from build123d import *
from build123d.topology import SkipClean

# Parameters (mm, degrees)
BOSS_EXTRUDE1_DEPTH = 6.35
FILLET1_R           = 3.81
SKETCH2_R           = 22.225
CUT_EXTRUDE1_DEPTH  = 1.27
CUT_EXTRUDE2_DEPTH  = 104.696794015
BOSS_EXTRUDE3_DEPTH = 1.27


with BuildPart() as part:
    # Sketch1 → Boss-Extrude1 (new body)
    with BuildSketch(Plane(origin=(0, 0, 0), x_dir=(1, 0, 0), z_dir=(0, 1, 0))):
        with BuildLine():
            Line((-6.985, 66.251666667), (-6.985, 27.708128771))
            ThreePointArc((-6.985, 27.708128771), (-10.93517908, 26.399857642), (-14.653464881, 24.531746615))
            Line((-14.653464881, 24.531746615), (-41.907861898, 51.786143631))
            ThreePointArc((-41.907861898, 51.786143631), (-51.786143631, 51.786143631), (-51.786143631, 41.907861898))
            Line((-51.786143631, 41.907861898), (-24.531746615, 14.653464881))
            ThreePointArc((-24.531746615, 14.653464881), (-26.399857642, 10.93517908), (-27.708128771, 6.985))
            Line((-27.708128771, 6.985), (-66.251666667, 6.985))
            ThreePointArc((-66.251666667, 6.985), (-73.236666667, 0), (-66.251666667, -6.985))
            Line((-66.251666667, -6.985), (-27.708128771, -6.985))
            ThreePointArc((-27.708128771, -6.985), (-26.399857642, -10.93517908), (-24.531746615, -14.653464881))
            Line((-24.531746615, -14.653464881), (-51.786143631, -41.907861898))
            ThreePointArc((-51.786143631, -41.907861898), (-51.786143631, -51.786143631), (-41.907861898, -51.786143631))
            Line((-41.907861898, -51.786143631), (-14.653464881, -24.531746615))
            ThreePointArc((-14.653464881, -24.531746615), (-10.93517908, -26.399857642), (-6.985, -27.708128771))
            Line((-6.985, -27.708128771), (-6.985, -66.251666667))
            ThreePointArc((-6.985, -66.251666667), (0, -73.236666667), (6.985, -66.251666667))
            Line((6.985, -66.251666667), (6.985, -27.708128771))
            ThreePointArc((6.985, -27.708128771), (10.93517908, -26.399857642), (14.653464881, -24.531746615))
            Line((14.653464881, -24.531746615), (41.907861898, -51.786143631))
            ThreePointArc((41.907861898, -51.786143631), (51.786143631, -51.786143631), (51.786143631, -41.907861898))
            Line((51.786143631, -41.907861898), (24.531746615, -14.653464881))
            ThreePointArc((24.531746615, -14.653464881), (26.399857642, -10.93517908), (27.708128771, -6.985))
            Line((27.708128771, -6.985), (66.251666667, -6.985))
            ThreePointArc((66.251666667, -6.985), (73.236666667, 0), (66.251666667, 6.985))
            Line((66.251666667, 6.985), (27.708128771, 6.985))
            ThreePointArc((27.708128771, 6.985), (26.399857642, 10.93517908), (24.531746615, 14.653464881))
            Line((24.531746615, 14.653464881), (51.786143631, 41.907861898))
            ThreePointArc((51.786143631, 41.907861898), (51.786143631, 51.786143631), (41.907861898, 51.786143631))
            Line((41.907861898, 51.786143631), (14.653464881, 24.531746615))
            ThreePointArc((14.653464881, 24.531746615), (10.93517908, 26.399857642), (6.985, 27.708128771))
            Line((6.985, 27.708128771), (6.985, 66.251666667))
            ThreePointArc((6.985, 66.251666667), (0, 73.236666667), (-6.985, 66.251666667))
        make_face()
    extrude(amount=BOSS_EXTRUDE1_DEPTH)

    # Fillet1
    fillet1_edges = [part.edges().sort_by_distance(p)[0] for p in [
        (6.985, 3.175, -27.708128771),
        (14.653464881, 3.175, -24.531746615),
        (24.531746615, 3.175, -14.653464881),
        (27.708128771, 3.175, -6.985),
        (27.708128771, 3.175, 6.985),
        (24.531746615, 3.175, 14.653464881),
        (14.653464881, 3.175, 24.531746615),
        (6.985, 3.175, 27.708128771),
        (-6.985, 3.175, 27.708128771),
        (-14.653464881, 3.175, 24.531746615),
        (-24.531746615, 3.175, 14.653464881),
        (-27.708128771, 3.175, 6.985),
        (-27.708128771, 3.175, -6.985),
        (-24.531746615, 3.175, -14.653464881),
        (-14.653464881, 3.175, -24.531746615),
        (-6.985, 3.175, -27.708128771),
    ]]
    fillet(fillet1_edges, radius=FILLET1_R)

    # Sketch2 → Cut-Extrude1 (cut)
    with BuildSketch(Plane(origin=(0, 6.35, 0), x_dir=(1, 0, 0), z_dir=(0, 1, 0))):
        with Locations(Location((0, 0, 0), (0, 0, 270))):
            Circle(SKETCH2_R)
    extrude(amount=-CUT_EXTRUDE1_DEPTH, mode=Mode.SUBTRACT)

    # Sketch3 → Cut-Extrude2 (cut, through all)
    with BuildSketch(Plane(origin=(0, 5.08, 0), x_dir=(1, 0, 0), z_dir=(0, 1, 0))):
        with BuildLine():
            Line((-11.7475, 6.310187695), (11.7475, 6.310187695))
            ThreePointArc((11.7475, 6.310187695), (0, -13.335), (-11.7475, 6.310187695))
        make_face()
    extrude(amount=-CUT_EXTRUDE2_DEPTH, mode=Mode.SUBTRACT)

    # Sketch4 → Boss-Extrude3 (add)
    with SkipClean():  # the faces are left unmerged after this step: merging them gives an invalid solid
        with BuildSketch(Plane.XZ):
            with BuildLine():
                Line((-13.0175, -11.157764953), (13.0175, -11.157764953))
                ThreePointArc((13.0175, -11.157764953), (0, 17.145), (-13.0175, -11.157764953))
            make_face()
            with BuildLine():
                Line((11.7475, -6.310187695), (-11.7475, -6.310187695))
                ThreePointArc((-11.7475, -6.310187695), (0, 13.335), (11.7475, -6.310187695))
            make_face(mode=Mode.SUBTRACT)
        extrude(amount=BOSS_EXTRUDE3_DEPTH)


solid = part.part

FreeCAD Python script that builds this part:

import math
import FreeCAD as App
import Part
import Sketcher
from FreeCAD import Vector
Q = App.Units.Quantity


def edges_at(feature, points):
    """Names of the edges that pass closest to the given points."""
    edges = feature.Shape.Edges
    near = lambda p: min(range(len(edges)), key=lambda i: edges[i].distToShape(Part.Vertex(*p))[0])
    return sorted({f"Edge{near(p) + 1}" for p in points})

doc = App.newDocument("Part")
params = doc.addObject("Spreadsheet::Sheet", "Params")
for row, (alias, value) in enumerate([
    ("sketch1_radius", "1.125 in"),
    ("sketch1_radius2", "0.275 in"),
    ("pad1_length", "0.25 in"),
    ("fillet_radius", "0.15 in"),
    ("sketch2_diameter", "1.75 in"),
    ("pocket1_length", "0.05 in"),
    ("sketch3_radius", "0.525 in"),
    ("sketch3_width", "0.925 in"),
    ("sketch4_radius", "0.675 in"),
    ("sketch4_radius2", "0.525 in"),
    ("sketch4_width", "1.025 in"),
    ("sketch4_width2", "0.925 in"),
    ("pad2_length", "0.05 in"),
], start=1):
    params.set(f"A{row}", alias)
    params.set(f"B{row}", "=" + value)
    params.setAlias(f"B{row}", alias)

body = doc.addObject("PartDesign::Body", "Body")

# Sketch on XZ plane
sketch1 = body.newObject("Sketcher::SketchObject", "Sketch")
sketch1.AttachmentSupport = (doc.getObject("XZ_Plane"), [""])
sketch1.MapMode = "FlatFace"
sketch1.addGeometry([
    Part.LineSegment(Vector(-7, -66, 0), Vector(-7, -28, 0)),  # 0
    Part.ArcOfCircle(Part.Circle(Vector(0, 0, 0), Vector(0, 0, 1), 29), math.radians(-120.85), math.radians(-104.15)),  # 1
    Part.LineSegment(Vector(-15, -25, 0), Vector(-42, -52, 0)),  # 2
    Part.ArcOfCircle(Part.Circle(Vector(-47, -47, 0), Vector(0, 0, 1), 7), math.radians(135), math.radians(315)),  # 3
    Part.LineSegment(Vector(-52, -42, 0), Vector(-25, -15, 0)),  # 4
    Part.ArcOfCircle(Part.Circle(Vector(0, 0, 0), Vector(0, 0, 1), 29), math.radians(-165.85), math.radians(-149.15)),  # 5
    Part.LineSegment(Vector(-28, -7, 0), Vector(-66, -7, 0)),  # 6
    Part.ArcOfCircle(Part.Circle(Vector(-66, 0, 0), Vector(0, 0, 1), 7), math.radians(90), math.radians(270)),  # 7
    Part.LineSegment(Vector(-66, 7, 0), Vector(-28, 7, 0)),  # 8
    Part.ArcOfCircle(Part.Circle(Vector(0, 0, 0), Vector(0, 0, 1), 29), math.radians(149.15), math.radians(165.85)),  # 9
    Part.LineSegment(Vector(-25, 15, 0), Vector(-52, 42, 0)),  # 10
    Part.ArcOfCircle(Part.Circle(Vector(-47, 47, 0), Vector(0, 0, 1), 7), math.radians(45), math.radians(225)),  # 11
    Part.LineSegment(Vector(-42, 52, 0), Vector(-15, 25, 0)),  # 12
    Part.ArcOfCircle(Part.Circle(Vector(0, 0, 0), Vector(0, 0, 1), 29), math.radians(104.15), math.radians(120.85)),  # 13
    Part.LineSegment(Vector(-7, 28, 0), Vector(-7, 66, 0)),  # 14
    Part.ArcOfCircle(Part.Circle(Vector(0, 66, 0), Vector(0, 0, 1), 7), math.radians(0), math.radians(180)),  # 15
    Part.LineSegment(Vector(7, 66, 0), Vector(7, 28, 0)),  # 16
    Part.ArcOfCircle(Part.Circle(Vector(0, 0, 0), Vector(0, 0, 1), 29), math.radians(59.15), math.radians(75.85)),  # 17
    Part.LineSegment(Vector(15, 25, 0), Vector(42, 52, 0)),  # 18
    Part.ArcOfCircle(Part.Circle(Vector(47, 47, 0), Vector(0, 0, 1), 7), math.radians(-45), math.radians(135)),  # 19
    Part.LineSegment(Vector(52, 42, 0), Vector(25, 15, 0)),  # 20
    Part.ArcOfCircle(Part.Circle(Vector(0, 0, 0), Vector(0, 0, 1), 29), math.radians(14.15), math.radians(30.85)),  # 21
    Part.LineSegment(Vector(28, 7, 0), Vector(66, 7, 0)),  # 22
    Part.ArcOfCircle(Part.Circle(Vector(66, 0, 0), Vector(0, 0, 1), 7), math.radians(-90), math.radians(90)),  # 23
    Part.LineSegment(Vector(66, -7, 0), Vector(28, -7, 0)),  # 24
    Part.ArcOfCircle(Part.Circle(Vector(0, 0, 0), Vector(0, 0, 1), 29), math.radians(-30.85), math.radians(-14.15)),  # 25
    Part.LineSegment(Vector(25, -15, 0), Vector(52, -42, 0)),  # 26
    Part.ArcOfCircle(Part.Circle(Vector(47, -47, 0), Vector(0, 0, 1), 7), math.radians(-135), math.radians(45)),  # 27
    Part.LineSegment(Vector(42, -52, 0), Vector(15, -25, 0)),  # 28
    Part.ArcOfCircle(Part.Circle(Vector(0, 0, 0), Vector(0, 0, 1), 29), math.radians(-75.85), math.radians(-59.15)),  # 29
    Part.LineSegment(Vector(7, -28, 0), Vector(7, -66, 0)),  # 30
    Part.ArcOfCircle(Part.Circle(Vector(0, -66, 0), Vector(0, 0, 1), 7), math.radians(180), math.radians(360)),  # 31
], False)
sketch1.addConstraint([
    Sketcher.Constraint("Coincident", 0, 2, 1, 2),
    Sketcher.Constraint("Coincident", 1, 1, 2, 1),
    Sketcher.Constraint("Tangent", 2, 2, 3, 2),
    Sketcher.Constraint("Tangent", 3, 1, 4, 1),
    Sketcher.Constraint("Coincident", 4, 2, 5, 2),
    Sketcher.Constraint("Coincident", 5, 1, 6, 1),
    Sketcher.Constraint("Tangent", 6, 2, 7, 2),
    Sketcher.Constraint("Tangent", 7, 1, 8, 1),
    Sketcher.Constraint("Coincident", 8, 2, 9, 2),
    Sketcher.Constraint("Coincident", 9, 1, 10, 1),
    Sketcher.Constraint("Tangent", 10, 2, 11, 2),
    Sketcher.Constraint("Tangent", 11, 1, 12, 1),
    Sketcher.Constraint("Coincident", 12, 2, 13, 2),
    Sketcher.Constraint("Coincident", 13, 1, 14, 1),
    Sketcher.Constraint("Tangent", 14, 2, 15, 2),
    Sketcher.Constraint("Tangent", 15, 1, 16, 1),
    Sketcher.Constraint("Coincident", 16, 2, 17, 2),
    Sketcher.Constraint("Coincident", 17, 1, 18, 1),
    Sketcher.Constraint("Tangent", 18, 2, 19, 2),
    Sketcher.Constraint("Tangent", 19, 1, 20, 1),
    Sketcher.Constraint("Coincident", 20, 2, 21, 2),
    Sketcher.Constraint("Coincident", 21, 1, 22, 1),
    Sketcher.Constraint("Tangent", 22, 2, 23, 2),
    Sketcher.Constraint("Tangent", 23, 1, 24, 1),
    Sketcher.Constraint("Coincident", 24, 2, 25, 2),
    Sketcher.Constraint("Coincident", 25, 1, 26, 1),
    Sketcher.Constraint("Tangent", 26, 2, 27, 2),
    Sketcher.Constraint("Tangent", 27, 1, 28, 1),
    Sketcher.Constraint("Coincident", 28, 2, 29, 2),
    Sketcher.Constraint("Coincident", 29, 1, 30, 1),
    Sketcher.Constraint("Tangent", 30, 2, 31, 2),
    Sketcher.Constraint("Tangent", 31, 1, 0, 1),
    Sketcher.Constraint("Vertical", 0),
    Sketcher.Constraint("Horizontal", 6),
    Sketcher.Constraint("Horizontal", 8),
    Sketcher.Constraint("Vertical", 14),
    Sketcher.Constraint("Vertical", 16),
    Sketcher.Constraint("Horizontal", 22),
    Sketcher.Constraint("Horizontal", 24),
    Sketcher.Constraint("Vertical", 30),
    Sketcher.Constraint("Coincident", 1, 3, -1, 1),
    Sketcher.Constraint("Coincident", 5, 3, -1, 1),
    Sketcher.Constraint("Coincident", 9, 3, -1, 1),
    Sketcher.Constraint("Coincident", 13, 3, -1, 1),
    Sketcher.Constraint("Coincident", 17, 3, -1, 1),
    Sketcher.Constraint("Coincident", 21, 3, -1, 1),
    Sketcher.Constraint("Coincident", 25, 3, -1, 1),
    Sketcher.Constraint("Coincident", 29, 3, -1, 1),
    Sketcher.Constraint("Equal", 1, 5),
    Sketcher.Constraint("Equal", 3, 7),
    Sketcher.Constraint("Equal", 5, 9),
    Sketcher.Constraint("Equal", 7, 11),
    Sketcher.Constraint("Equal", 9, 13),
    Sketcher.Constraint("Equal", 11, 15),
    Sketcher.Constraint("Equal", 13, 17),
    Sketcher.Constraint("Equal", 15, 19),
    Sketcher.Constraint("Equal", 17, 21),
    Sketcher.Constraint("Equal", 19, 23),
    Sketcher.Constraint("Equal", 21, 25),
    Sketcher.Constraint("Equal", 23, 27),
    Sketcher.Constraint("Equal", 25, 29),
    Sketcher.Constraint("Equal", 27, 31),
    Sketcher.Constraint("Symmetric", 3, 3, 19, 3, -1, 1),
    Sketcher.Constraint("Symmetric", 7, 3, 23, 3, -1, 1),
    Sketcher.Constraint("Symmetric", 11, 3, 27, 3, -1, 1),
    Sketcher.Constraint("Symmetric", 15, 3, 31, 3, -1, 1),
    Sketcher.Constraint("Symmetric", 11, 3, 19, 3, -2),
    Sketcher.Constraint("PointOnObject", 7, 3, -1),
    Sketcher.Constraint("PointOnObject", 15, 3, -2),
    Sketcher.Constraint("Parallel", 2, 4),
    Sketcher.Constraint("Perpendicular", 4, 10),
    Sketcher.Constraint("Parallel", 10, 12),
    Sketcher.Constraint("Perpendicular", 12, 18),
    Sketcher.Constraint("Parallel", 18, 20),
    Sketcher.Constraint("Perpendicular", 20, 26),
    Sketcher.Constraint("Parallel", 26, 28),
    Sketcher.Constraint("Horizontal", 12, 2, 17, 1),
    Sketcher.Constraint("Equal", 24, 0),
    Sketcher.Constraint("Equal", 2, 4),
    Sketcher.Constraint("Radius", 1, Q("1.125 in")),
    Sketcher.Constraint("Radius", 3, Q("0.275 in")),
    Sketcher.Constraint("DistanceX", 6, 2, 6, 1, 38.543538),
    Sketcher.Constraint("DistanceX", 2, 2, -1, 1, 41.907862),
])
sketch1.setExpression("Constraints[79]", "Params.sketch1_radius")
sketch1.setExpression("Constraints[80]", "Params.sketch1_radius2")
pad1 = body.newObject("PartDesign::Pad", "Pad")
pad1.Profile = sketch1
pad1.setExpression("Length", "Params.pad1_length")
pad1.Reversed = True
doc.recompute()

fillet = body.newObject("PartDesign::Fillet", "Fillet")
fillet.Base = (pad1, edges_at(pad1, [
    (6.985, 3.175, -27.708),
    (14.653, 3.175, -24.532),
    (24.532, 3.175, -14.653),
    (27.708, 3.175, -6.985),
    (27.708, 3.175, 6.985),
    (24.532, 3.175, 14.653),
    (14.653, 3.175, 24.532),
    (6.985, 3.175, 27.708),
    (-6.985, 3.175, 27.708),
    (-14.653, 3.175, 24.532),
    (-24.532, 3.175, 14.653),
    (-27.708, 3.175, 6.985),
    (-27.708, 3.175, -6.985),
    (-24.532, 3.175, -14.653),
    (-14.653, 3.175, -24.532),
    (-6.985, 3.175, -27.708),
]))
fillet.setExpression("Radius", "Params.fillet_radius")

# Sketch on XZ plane
sketch2 = body.newObject("Sketcher::SketchObject", "Sketch001")
sketch2.AttachmentSupport = (doc.getObject("XZ_Plane"), [""])
sketch2.MapMode = "FlatFace"
sketch2.AttachmentOffset = App.Placement(Vector(0, 0, -0.25 * 25.4), App.Rotation())
sketch2.addGeometry(Part.Circle(Vector(0, 0, 0), Vector(0, 0, 1), 22), False)
sketch2.addConstraint([
    Sketcher.Constraint("Coincident", 0, 3, -1, 1),
    Sketcher.Constraint("Diameter", 0, Q("1.75 in")),
])
sketch2.setExpression("Constraints[1]", "Params.sketch2_diameter")
pocket1 = body.newObject("PartDesign::Pocket", "Pocket")
pocket1.Profile = sketch2
pocket1.setExpression("Length", "Params.pocket1_length")
pocket1.Reversed = True

# Sketch on XZ plane
sketch3 = body.newObject("Sketcher::SketchObject", "Sketch002")
sketch3.AttachmentSupport = (doc.getObject("XZ_Plane"), [""])
sketch3.MapMode = "FlatFace"
sketch3.AttachmentOffset = App.Placement(Vector(0, 0, -0.2 * 25.4), App.Rotation())
sketch3.addGeometry([
    Part.LineSegment(Vector(12, -6, 0), Vector(-12, -6, 0)),
    Part.ArcOfCircle(Part.Circle(Vector(0, 0, 0), Vector(0, 0, 1), 13), math.radians(-28), math.radians(208)),
], False)
sketch3.addConstraint([
    Sketcher.Constraint("Coincident", 0, 1, 1, 1),
    Sketcher.Constraint("Coincident", 1, 2, 0, 2),
    Sketcher.Constraint("Horizontal", 0),
    Sketcher.Constraint("Coincident", 1, 3, -1, 1),
    Sketcher.Constraint("Radius", 1, Q("0.525 in")),
    Sketcher.Constraint("DistanceX", 0, 2, 0, 1, Q("0.925 in")),
])
sketch3.setExpression("Constraints[4]", "Params.sketch3_radius")
sketch3.setExpression("Constraints[5]", "Params.sketch3_width")
pocket2 = body.newObject("PartDesign::Pocket", "Pocket001")
pocket2.Profile = sketch3
pocket2.Type = "ThroughAll"
pocket2.Reversed = True

# Sketch on XZ plane
sketch4 = body.newObject("Sketcher::SketchObject", "Sketch003")
sketch4.AttachmentSupport = (doc.getObject("XZ_Plane"), [""])
sketch4.MapMode = "FlatFace"
sketch4.addGeometry([
    Part.LineSegment(Vector(-13, -11, 0), Vector(13, -11, 0)),
    Part.ArcOfCircle(Part.Circle(Vector(0, 0, 0), Vector(0, 0, 1), 17), math.radians(-41), math.radians(221)),
    Part.ArcOfCircle(Part.Circle(Vector(0, 0, 0), Vector(0, 0, 1), 13), math.radians(-28), math.radians(208)),
    Part.LineSegment(Vector(12, -6, 0), Vector(-12, -6, 0)),
], False)
sketch4.addConstraint([
    Sketcher.Constraint("Coincident", 0, 1, 1, 2),
    Sketcher.Constraint("Coincident", 1, 1, 0, 2),
    Sketcher.Constraint("Coincident", 2, 1, 3, 1),
    Sketcher.Constraint("Coincident", 3, 2, 2, 2),
    Sketcher.Constraint("Horizontal", 0),
    Sketcher.Constraint("Horizontal", 3),
    Sketcher.Constraint("Coincident", 1, 3, -1, 1),
    Sketcher.Constraint("Coincident", 2, 3, -1, 1),
    Sketcher.Constraint("Radius", 1, Q("0.675 in")),
    Sketcher.Constraint("Radius", 2, Q("0.525 in")),
    Sketcher.Constraint("DistanceX", 0, 1, 0, 2, Q("1.025 in")),
    Sketcher.Constraint("DistanceX", 3, 2, 3, 1, Q("0.925 in")),
])
sketch4.setExpression("Constraints[8]", "Params.sketch4_radius")
sketch4.setExpression("Constraints[9]", "Params.sketch4_radius2")
sketch4.setExpression("Constraints[10]", "Params.sketch4_width")
sketch4.setExpression("Constraints[11]", "Params.sketch4_width2")
pad2 = body.newObject("PartDesign::Pad", "Pad001")
pad2.Profile = sketch4
pad2.setExpression("Length", "Params.pad2_length")

doc.recompute()
